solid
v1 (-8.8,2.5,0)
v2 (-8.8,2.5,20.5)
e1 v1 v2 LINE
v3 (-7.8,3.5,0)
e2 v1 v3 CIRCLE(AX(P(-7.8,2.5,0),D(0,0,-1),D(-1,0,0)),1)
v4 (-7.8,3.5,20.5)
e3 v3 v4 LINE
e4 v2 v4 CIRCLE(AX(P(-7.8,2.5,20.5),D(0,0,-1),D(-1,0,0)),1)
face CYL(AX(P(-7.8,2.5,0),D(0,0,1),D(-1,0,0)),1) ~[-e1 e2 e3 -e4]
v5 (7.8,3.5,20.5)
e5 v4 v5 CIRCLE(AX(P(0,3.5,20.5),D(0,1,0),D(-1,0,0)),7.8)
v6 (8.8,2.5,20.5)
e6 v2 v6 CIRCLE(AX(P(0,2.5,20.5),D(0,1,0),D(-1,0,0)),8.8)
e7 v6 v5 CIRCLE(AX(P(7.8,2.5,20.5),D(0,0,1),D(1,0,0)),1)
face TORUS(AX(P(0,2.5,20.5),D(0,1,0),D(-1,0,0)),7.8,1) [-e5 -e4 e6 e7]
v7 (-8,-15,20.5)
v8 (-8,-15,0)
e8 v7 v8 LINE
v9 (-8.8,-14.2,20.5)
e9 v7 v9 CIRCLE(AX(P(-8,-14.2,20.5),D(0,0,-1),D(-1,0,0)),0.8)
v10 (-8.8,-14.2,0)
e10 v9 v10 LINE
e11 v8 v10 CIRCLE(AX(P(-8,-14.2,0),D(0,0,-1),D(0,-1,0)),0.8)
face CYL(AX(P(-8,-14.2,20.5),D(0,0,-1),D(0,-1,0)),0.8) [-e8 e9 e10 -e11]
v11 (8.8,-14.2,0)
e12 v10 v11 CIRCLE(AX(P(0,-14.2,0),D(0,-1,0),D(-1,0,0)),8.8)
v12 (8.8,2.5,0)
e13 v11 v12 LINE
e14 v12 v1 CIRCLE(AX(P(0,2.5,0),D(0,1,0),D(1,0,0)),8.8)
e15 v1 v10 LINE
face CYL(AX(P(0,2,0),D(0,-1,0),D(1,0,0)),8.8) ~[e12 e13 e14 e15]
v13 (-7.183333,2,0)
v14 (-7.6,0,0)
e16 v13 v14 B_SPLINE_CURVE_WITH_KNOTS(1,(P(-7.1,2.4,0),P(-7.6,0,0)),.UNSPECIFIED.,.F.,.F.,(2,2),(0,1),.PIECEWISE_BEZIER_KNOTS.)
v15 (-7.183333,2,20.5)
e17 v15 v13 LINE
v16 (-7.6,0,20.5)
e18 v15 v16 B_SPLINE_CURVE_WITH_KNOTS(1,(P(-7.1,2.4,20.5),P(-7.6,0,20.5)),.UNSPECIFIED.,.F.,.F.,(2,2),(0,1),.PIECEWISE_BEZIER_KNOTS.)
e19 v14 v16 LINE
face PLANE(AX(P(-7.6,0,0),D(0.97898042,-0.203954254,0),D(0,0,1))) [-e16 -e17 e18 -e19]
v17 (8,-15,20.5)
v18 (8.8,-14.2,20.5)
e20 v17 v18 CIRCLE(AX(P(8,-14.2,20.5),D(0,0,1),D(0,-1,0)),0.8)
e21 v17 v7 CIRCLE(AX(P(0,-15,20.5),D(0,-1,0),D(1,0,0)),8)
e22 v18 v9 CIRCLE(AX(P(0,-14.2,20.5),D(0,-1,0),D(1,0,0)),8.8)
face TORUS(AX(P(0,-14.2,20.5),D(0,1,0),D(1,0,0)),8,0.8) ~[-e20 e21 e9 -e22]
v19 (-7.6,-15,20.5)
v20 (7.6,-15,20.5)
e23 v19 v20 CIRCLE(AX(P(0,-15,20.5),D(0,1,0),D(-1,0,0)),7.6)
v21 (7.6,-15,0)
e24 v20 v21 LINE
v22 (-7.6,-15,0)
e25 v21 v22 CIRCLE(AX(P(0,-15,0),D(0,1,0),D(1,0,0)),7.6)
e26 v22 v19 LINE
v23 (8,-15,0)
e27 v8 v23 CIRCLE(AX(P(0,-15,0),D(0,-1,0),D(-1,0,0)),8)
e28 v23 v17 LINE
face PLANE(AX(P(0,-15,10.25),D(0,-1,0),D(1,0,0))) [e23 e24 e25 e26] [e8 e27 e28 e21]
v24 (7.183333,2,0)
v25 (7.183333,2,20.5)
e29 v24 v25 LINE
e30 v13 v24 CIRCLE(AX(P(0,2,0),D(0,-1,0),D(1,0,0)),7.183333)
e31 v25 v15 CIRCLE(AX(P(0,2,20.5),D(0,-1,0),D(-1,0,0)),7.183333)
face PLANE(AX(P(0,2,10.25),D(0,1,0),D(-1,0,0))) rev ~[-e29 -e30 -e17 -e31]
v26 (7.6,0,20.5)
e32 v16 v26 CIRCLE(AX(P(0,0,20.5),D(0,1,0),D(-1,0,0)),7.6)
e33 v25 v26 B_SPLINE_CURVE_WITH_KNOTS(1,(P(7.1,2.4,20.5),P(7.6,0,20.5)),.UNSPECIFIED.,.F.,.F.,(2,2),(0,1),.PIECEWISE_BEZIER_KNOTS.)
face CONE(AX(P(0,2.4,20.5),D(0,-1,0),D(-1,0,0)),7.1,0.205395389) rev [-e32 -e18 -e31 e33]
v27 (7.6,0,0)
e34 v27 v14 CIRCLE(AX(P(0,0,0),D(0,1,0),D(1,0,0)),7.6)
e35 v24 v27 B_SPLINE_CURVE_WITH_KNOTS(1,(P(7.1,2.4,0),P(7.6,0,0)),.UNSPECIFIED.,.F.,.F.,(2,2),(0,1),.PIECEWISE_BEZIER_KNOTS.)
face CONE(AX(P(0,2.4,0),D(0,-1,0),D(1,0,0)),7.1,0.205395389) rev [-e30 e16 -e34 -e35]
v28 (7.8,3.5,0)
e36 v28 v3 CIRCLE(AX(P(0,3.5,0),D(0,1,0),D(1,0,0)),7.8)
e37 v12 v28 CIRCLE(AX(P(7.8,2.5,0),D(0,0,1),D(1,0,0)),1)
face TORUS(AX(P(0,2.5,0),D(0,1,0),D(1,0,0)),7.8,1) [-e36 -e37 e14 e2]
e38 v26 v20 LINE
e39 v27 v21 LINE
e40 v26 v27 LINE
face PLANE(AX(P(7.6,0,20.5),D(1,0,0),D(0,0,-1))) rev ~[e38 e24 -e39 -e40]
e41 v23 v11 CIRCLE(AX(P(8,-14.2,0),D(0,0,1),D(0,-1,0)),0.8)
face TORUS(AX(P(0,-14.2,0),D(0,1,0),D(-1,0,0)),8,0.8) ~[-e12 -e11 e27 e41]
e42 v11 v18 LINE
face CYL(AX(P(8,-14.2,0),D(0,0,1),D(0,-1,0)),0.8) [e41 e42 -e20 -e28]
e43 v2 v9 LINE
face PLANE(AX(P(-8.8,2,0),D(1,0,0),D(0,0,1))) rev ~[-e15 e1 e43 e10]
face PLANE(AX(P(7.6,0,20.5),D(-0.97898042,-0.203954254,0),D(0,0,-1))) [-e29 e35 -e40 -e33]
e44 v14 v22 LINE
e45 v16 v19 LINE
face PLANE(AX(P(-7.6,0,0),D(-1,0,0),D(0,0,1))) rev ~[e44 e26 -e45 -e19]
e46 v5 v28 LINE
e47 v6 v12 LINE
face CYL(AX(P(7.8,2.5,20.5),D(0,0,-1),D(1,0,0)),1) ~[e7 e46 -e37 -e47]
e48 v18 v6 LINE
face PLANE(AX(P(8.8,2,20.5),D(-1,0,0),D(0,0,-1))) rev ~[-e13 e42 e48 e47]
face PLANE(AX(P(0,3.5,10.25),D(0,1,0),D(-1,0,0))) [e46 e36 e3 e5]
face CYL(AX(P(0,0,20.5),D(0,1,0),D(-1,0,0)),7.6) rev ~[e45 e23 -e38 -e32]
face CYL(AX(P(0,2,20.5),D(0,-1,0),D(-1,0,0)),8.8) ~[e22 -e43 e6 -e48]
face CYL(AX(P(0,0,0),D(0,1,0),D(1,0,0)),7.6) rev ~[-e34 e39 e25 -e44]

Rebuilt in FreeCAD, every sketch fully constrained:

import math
import FreeCAD as App
import Part
import Sketcher


def edges_at(feature, points):
    """Names of the edges that pass closest to the given points."""
    edges = feature.Shape.Edges
    near = lambda p: min(range(len(edges)), key=lambda i: edges[i].distToShape(Part.Vertex(*p))[0])
    return sorted({f"Edge{near(p) + 1}" for p in points})

doc = App.newDocument("Part")
body = doc.addObject("PartDesign::Body", "Body")

sketch1 = body.newObject("Sketcher::SketchObject", "Sketch")
sketch1.AttachmentSupport = (doc.getObject("XZ_Plane"), [""])
sketch1.MapMode = "FlatFace"
sketch1.addGeometry(Part.LineSegment(App.Vector(9, 0, 0), App.Vector(9, 20, 0)), False)
sketch1.addGeometry(Part.ArcOfCircle(Part.Circle(App.Vector(0, 20, 0), App.Vector(0, 0, 1), 9), math.radians(0), math.radians(180)), False)
sketch1.addGeometry(Part.LineSegment(App.Vector(-9, 20, 0), App.Vector(-9, 0, 0)), False)
sketch1.addGeometry(Part.ArcOfCircle(Part.Circle(App.Vector(0, 0, 0), App.Vector(0, 0, 1), 9), math.radians(180), math.radians(360)), False)
sketch1.addGeometry(Part.LineSegment(App.Vector(-8, 0, 0), App.Vector(-8, 20, 0)), False)
sketch1.addGeometry(Part.ArcOfCircle(Part.Circle(App.Vector(0, 20, 0), App.Vector(0, 0, 1), 8), math.radians(0), math.radians(180)), False)
sketch1.addGeometry(Part.LineSegment(App.Vector(8, 20, 0), App.Vector(8, 0, 0)), False)
sketch1.addGeometry(Part.ArcOfCircle(Part.Circle(App.Vector(0, 0, 0), App.Vector(0, 0, 1), 8), math.radians(180), math.radians(360)), False)
sketch1.addConstraint(Sketcher.Constraint("Tangent", 0, 2, 1, 1))
sketch1.addConstraint(Sketcher.Constraint("Tangent", 1, 2, 2, 1))
sketch1.addConstraint(Sketcher.Constraint("Tangent", 2, 2, 3, 1))
sketch1.addConstraint(Sketcher.Constraint("Tangent", 3, 2, 0, 1))
sketch1.addConstraint(Sketcher.Constraint("Tangent", 4, 2, 5, 2))
sketch1.addConstraint(Sketcher.Constraint("Tangent", 5, 1, 6, 1))
sketch1.addConstraint(Sketcher.Constraint("Tangent", 6, 2, 7, 2))
sketch1.addConstraint(Sketcher.Constraint("Tangent", 7, 1, 4, 1))
sketch1.addConstraint(Sketcher.Constraint("Vertical", 0))
sketch1.addConstraint(Sketcher.Constraint("Vertical", 2))
sketch1.addConstraint(Sketcher.Constraint("Vertical", 4))
sketch1.addConstraint(Sketcher.Constraint("Vertical", 6))
sketch1.addConstraint(Sketcher.Constraint("Coincident", 3, 3, -1, 1))
sketch1.addConstraint(Sketcher.Constraint("Coincident", 7, 3, -1, 1))
sketch1.addConstraint(Sketcher.Constraint("Horizontal", 5, 3, 0, 2))
sketch1.addConstraint(Sketcher.Constraint("Radius", 1, 8.8))
sketch1.addConstraint(Sketcher.Constraint("Radius", 5, 7.6))
sketch1.addConstraint(Sketcher.Constraint("DistanceY", 0, 1, 0, 2, 20.5))
pad1 = body.newObject("PartDesign::Pad", "Pad")
pad1.Profile = sketch1
pad1.Length = 15

sketch2 = body.newObject("Sketcher::SketchObject", "Sketch001")
sketch2.AttachmentSupport = (doc.getObject("XZ_Plane"), [""])
sketch2.MapMode = "FlatFace"
sketch2.addGeometry(Part.ArcOfCircle(Part.Circle(App.Vector(0, 20, 0), App.Vector(0, 0, 1), 9), math.radians(0), math.radians(180)), False)
sketch2.addGeometry(Part.LineSegment(App.Vector(9, 20, 0), App.Vector(9, 0, 0)), False)
sketch2.addGeometry(Part.ArcOfCircle(Part.Circle(App.Vector(0, 0, 0), App.Vector(0, 0, 1), 9), math.radians(180), math.radians(360)), False)
sketch2.addGeometry(Part.LineSegment(App.Vector(-9, 0, 0), App.Vector(-9, 20, 0)), False)
sketch2.addConstraint(Sketcher.Constraint("Tangent", 0, 1, 1, 1))
sketch2.addConstraint(Sketcher.Constraint("Tangent", 1, 2, 2, 2))
sketch2.addConstraint(Sketcher.Constraint("Tangent", 2, 1, 3, 1))
sketch2.addConstraint(Sketcher.Constraint("Tangent", 3, 2, 0, 2))
sketch2.addConstraint(Sketcher.Constraint("Vertical", 1))
sketch2.addConstraint(Sketcher.Constraint("Vertical", 3))
sketch2.addConstraint(Sketcher.Constraint("Coincident", 2, 3, -1, 1))
sketch2.addConstraint(Sketcher.Constraint("Radius", 0, 8.8))
sketch2.addConstraint(Sketcher.Constraint("DistanceY", 1, 2, 1, 1, 20.5))
pad2 = body.newObject("PartDesign::Pad", "Pad001")
pad2.Profile = sketch2
pad2.Length = 2
pad2.Reversed = True

sketch3 = body.newObject("Sketcher::SketchObject", "Sketch002")
sketch3.AttachmentSupport = (doc.getObject("XZ_Plane"), [""])
sketch3.MapMode = "FlatFace"
sketch3.AttachmentOffset = App.Placement(App.Vector(0, 0, -2.4), App.Rotation())
sketch3.addGeometry(Part.ArcOfCircle(Part.Circle(App.Vector(0, 20, 0), App.Vector(0, 0, 1), 7), math.radians(0), math.radians(180)), False)
sketch3.addGeometry(Part.LineSegment(App.Vector(7, 20, 0), App.Vector(7, 0, 0)), False)
sketch3.addGeometry(Part.ArcOfCircle(Part.Circle(App.Vector(0, 0, 0), App.Vector(0, 0, 1), 7), math.radians(180), math.radians(360)), False)
sketch3.addGeometry(Part.LineSegment(App.Vector(-7, 0, 0), App.Vector(-7, 20, 0)), False)
sketch3.addConstraint(Sketcher.Constraint("Tangent", 0, 1, 1, 1))
sketch3.addConstraint(Sketcher.Constraint("Tangent", 1, 2, 2, 2))
sketch3.addConstraint(Sketcher.Constraint("Tangent", 2, 1, 3, 1))
sketch3.addConstraint(Sketcher.Constraint("Tangent", 3, 2, 0, 2))
sketch3.addConstraint(Sketcher.Constraint("Vertical", 1))
sketch3.addConstraint(Sketcher.Constraint("Vertical", 3))
sketch3.addConstraint(Sketcher.Constraint("Coincident", 2, 3, -1, 1))
sketch3.addConstraint(Sketcher.Constraint("Radius", 0, 7.1))
sketch3.addConstraint(Sketcher.Constraint("DistanceY", 1, 2, 1, 1, 20.5))

sketch4 = body.newObject("Sketcher::SketchObject", "Sketch003")
sketch4.AttachmentSupport = (doc.getObject("XZ_Plane"), [""])
sketch4.MapMode = "FlatFace"
sketch4.addGeometry(Part.LineSegment(App.Vector(-8, 0, 0), App.Vector(-8, 20, 0)), False)
sketch4.addGeometry(Part.ArcOfCircle(Part.Circle(App.Vector(0, 20, 0), App.Vector(0, 0, 1), 8), math.radians(0), math.radians(180)), False)
sketch4.addGeometry(Part.LineSegment(App.Vector(8, 20, 0), App.Vector(8, 0, 0)), False)
sketch4.addGeometry(Part.ArcOfCircle(Part.Circle(App.Vector(0, 0, 0), App.Vector(0, 0, 1), 8), math.radians(180), math.radians(360)), False)
sketch4.addConstraint(Sketcher.Constraint("Tangent", 0, 2, 1, 2))
sketch4.addConstraint(Sketcher.Constraint("Tangent", 1, 1, 2, 1))
sketch4.addConstraint(Sketcher.Constraint("Tangent", 2, 2, 3, 2))
sketch4.addConstraint(Sketcher.Constraint("Tangent", 3, 1, 0, 1))
sketch4.addConstraint(Sketcher.Constraint("Vertical", 0))
sketch4.addConstraint(Sketcher.Constraint("Vertical", 2))
sketch4.addConstraint(Sketcher.Constraint("Coincident", 3, 3, -1, 1))
sketch4.addConstraint(Sketcher.Constraint("Radius", 1, 7.6))
sketch4.addConstraint(Sketcher.Constraint("DistanceY", 0, 1, 0, 2, 20.5))

subtractiveloft = body.newObject("PartDesign::SubtractiveLoft", "SubtractiveLoft")
subtractiveloft.Profile = sketch3
subtractiveloft.Sections = [sketch4]

sketch5 = body.newObject("Sketcher::SketchObject", "Sketch004")
sketch5.AttachmentSupport = (doc.getObject("XZ_Plane"), [""])
sketch5.MapMode = "FlatFace"
sketch5.AttachmentOffset = App.Placement(App.Vector(0, 0, -2), App.Rotation())
sketch5.addGeometry(Part.ArcOfCircle(Part.Circle(App.Vector(0, 20, 0), App.Vector(0, 0, 1), 9), math.radians(0), math.radians(180)), False)
sketch5.addGeometry(Part.LineSegment(App.Vector(9, 20, 0), App.Vector(9, 0, 0)), False)
sketch5.addGeometry(Part.ArcOfCircle(Part.Circle(App.Vector(0, 0, 0), App.Vector(0, 0, 1), 9), math.radians(180), math.radians(360)), False)
sketch5.addGeometry(Part.LineSegment(App.Vector(-9, 0, 0), App.Vector(-9, 20, 0)), False)
sketch5.addConstraint(Sketcher.Constraint("Tangent", 0, 1, 1, 1))
sketch5.addConstraint(Sketcher.Constraint("Tangent", 1, 2, 2, 2))
sketch5.addConstraint(Sketcher.Constraint("Tangent", 2, 1, 3, 1))
sketch5.addConstraint(Sketcher.Constraint("Tangent", 3, 2, 0, 2))
sketch5.addConstraint(Sketcher.Constraint("Vertical", 1))
sketch5.addConstraint(Sketcher.Constraint("Vertical", 3))
sketch5.addConstraint(Sketcher.Constraint("Coincident", 2, 3, -1, 1))
sketch5.addConstraint(Sketcher.Constraint("Radius", 0, 8.8))
sketch5.addConstraint(Sketcher.Constraint("DistanceY", 1, 2, 1, 1, 20.5))
pad3 = body.newObject("PartDesign::Pad", "Pad002")
pad3.Profile = sketch5
pad3.Length = 1.5
pad3.Reversed = True
doc.recompute()

fillet = body.newObject("PartDesign::Fillet", "Fillet")
fillet.Base = (pad3, edges_at(pad3, [(0, 3.5, -8.8)]))
fillet.Radius = 1
doc.recompute()

fillet2 = body.newObject("PartDesign::Fillet", "Fillet001")
fillet2.Base = (fillet, edges_at(fillet, [(8.8, -15, 10.25)]))
fillet2.Radius = 0.8

doc.recompute()
